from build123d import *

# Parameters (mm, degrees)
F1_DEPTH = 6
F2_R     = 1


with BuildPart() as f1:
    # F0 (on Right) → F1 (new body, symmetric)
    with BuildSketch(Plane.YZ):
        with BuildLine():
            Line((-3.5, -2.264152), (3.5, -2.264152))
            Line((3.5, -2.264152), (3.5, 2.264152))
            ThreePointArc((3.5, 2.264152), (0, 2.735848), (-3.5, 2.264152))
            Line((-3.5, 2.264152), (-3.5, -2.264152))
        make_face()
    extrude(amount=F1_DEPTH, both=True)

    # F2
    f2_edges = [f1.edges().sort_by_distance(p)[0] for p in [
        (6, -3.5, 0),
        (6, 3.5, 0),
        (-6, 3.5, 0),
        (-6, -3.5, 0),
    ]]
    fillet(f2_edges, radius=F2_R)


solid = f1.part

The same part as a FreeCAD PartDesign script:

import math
import FreeCAD as App
import Part
import Sketcher
Q = App.Units.Quantity


def edges_at(feature, points):
    """Names of the edges that pass closest to the given points."""
    edges = feature.Shape.Edges
    near = lambda p: min(range(len(edges)), key=lambda i: edges[i].distToShape(Part.Vertex(*p))[0])
    return sorted({f"Edge{near(p) + 1}" for p in points})

doc = App.newDocument("Part")
body = doc.addObject("PartDesign::Body", "Body")

# Sketch on YZ plane
sketch1 = body.newObject("Sketcher::SketchObject", "Sketch")
sketch1.AttachmentSupport = (doc.getObject("YZ_Plane"), [""])
sketch1.MapMode = "FlatFace"
sketch1.addGeometry([
    Part.LineSegment(App.Vector(-3.5, -2.3, 0), App.Vector(3.5, -2.3, 0)),
    Part.LineSegment(App.Vector(3.5, -2.3, 0), App.Vector(3.5, 2.3, 0)),
    Part.ArcOfCircle(Part.Circle(App.Vector(0, -10.5, 0), App.Vector(0, 0, 1), 13.2), math.radians(75), math.radians(105)),
    Part.LineSegment(App.Vector(-3.5, 2.3, 0), App.Vector(-3.5, -2.3, 0)),
], False)
sketch1.addConstraint([
    Sketcher.Constraint("Coincident", 0, 2, 1, 1),
    Sketcher.Constraint("Coincident", 1, 2, 2, 1),
    Sketcher.Constraint("Coincident", 2, 2, 3, 1),
    Sketcher.Constraint("Coincident", 3, 2, 0, 1),
    Sketcher.Constraint("Horizontal", 0),
    Sketcher.Constraint("Vertical", 1),
    Sketcher.Constraint("Vertical", 3),
    Sketcher.Constraint("Symmetric", 0, 2, 2, 2, -1, 1),
    Sketcher.Constraint("PointOnObject", 2, 3, -2),
    Sketcher.Constraint("DistanceX", 0, 1, 0, 2, Q("7 mm")),
    Sketcher.Constraint("Radius", 2, Q("13.220906 mm")),
    Sketcher.Constraint("DistanceY", 1, 1, 1, 2, Q("4.528304 mm")),
])
pad1 = body.newObject("PartDesign::Pad", "Pad")
pad1.Profile = sketch1
pad1.Length = 12
pad1.Midplane = True
doc.recompute()

fillet = body.newObject("PartDesign::Fillet", "Fillet")
fillet.Base = (pad1, edges_at(pad1, [
    (6, -3.5, 0),
    (6, 3.5, 0),
    (-6, 3.5, 0),
    (-6, -3.5, 0),
]))
fillet.Radius = 1

doc.recompute()
